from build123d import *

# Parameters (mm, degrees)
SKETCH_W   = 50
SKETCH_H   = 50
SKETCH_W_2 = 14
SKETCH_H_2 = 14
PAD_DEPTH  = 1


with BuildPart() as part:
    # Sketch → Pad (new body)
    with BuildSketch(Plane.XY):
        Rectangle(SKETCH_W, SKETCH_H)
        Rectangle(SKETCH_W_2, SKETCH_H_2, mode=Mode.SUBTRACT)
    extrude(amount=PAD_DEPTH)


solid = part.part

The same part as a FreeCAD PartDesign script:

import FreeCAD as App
import Part
import Sketcher

V = App.Vector
Q = App.Units.Quantity

doc = App.newDocument("Part")
body = doc.addObject("PartDesign::Body", "Body")

# Sketch on XY plane
sketch1 = body.newObject("Sketcher::SketchObject", "Sketch")
sketch1.AttachmentSupport = (doc.getObject("XY_Plane"), [""])
sketch1.MapMode = "FlatFace"
sketch1.addGeometry(Part.LineSegment(V(-25, 25, 0), V(-25, -25, 0)), False)
sketch1.addGeometry(Part.LineSegment(V(-25, -25, 0), V(25, -25, 0)), False)
sketch1.addGeometry(Part.LineSegment(V(25, -25, 0), V(25, 25, 0)), False)
sketch1.addGeometry(Part.LineSegment(V(25, 25, 0), V(-25, 25, 0)), False)
sketch1.addGeometry(Part.LineSegment(V(7, -7, 0), V(-7, -7, 0)), False)
sketch1.addGeometry(Part.LineSegment(V(-7, -7, 0), V(-7, 7, 0)), False)
sketch1.addGeometry(Part.LineSegment(V(-7, 7, 0), V(7, 7, 0)), False)
sketch1.addGeometry(Part.LineSegment(V(7, 7, 0), V(7, -7, 0)), False)
sketch1.addConstraint(Sketcher.Constraint("Coincident", 0, 2, 1, 1))
sketch1.addConstraint(Sketcher.Constraint("Coincident", 1, 2, 2, 1))
sketch1.addConstraint(Sketcher.Constraint("Coincident", 2, 2, 3, 1))
sketch1.addConstraint(Sketcher.Constraint("Coincident", 3, 2, 0, 1))
sketch1.addConstraint(Sketcher.Constraint("Coincident", 4, 2, 5, 1))
sketch1.addConstraint(Sketcher.Constraint("Coincident", 5, 2, 6, 1))
sketch1.addConstraint(Sketcher.Constraint("Coincident", 6, 2, 7, 1))
sketch1.addConstraint(Sketcher.Constraint("Coincident", 7, 2, 4, 1))
sketch1.addConstraint(Sketcher.Constraint("Vertical", 0))
sketch1.addConstraint(Sketcher.Constraint("Horizontal", 1))
sketch1.addConstraint(Sketcher.Constraint("Vertical", 2))
sketch1.addConstraint(Sketcher.Constraint("Horizontal", 3))
sketch1.addConstraint(Sketcher.Constraint("Horizontal", 4))
sketch1.addConstraint(Sketcher.Constraint("Vertical", 5))
sketch1.addConstraint(Sketcher.Constraint("Horizontal", 6))
sketch1.addConstraint(Sketcher.Constraint("Vertical", 7))
sketch1.addConstraint(Sketcher.Constraint("Symmetric", 0, 2, 2, 2, -1, 1))
sketch1.addConstraint(Sketcher.Constraint("Symmetric", 4, 2, 6, 2, -1, 1))
sketch1.addConstraint(Sketcher.Constraint("Equal", 3, 0))
sketch1.addConstraint(Sketcher.Constraint("Equal", 6, 5))
sketch1.addConstraint(Sketcher.Constraint("DistanceX", 1, 1, 1, 2, Q("50 mm")))
sketch1.addConstraint(Sketcher.Constraint("DistanceX", 4, 2, 4, 1, Q("14 mm")))
pad1 = body.newObject("PartDesign::Pad", "Pad")
pad1.Profile = sketch1
pad1.Length = 1

doc.recompute()
